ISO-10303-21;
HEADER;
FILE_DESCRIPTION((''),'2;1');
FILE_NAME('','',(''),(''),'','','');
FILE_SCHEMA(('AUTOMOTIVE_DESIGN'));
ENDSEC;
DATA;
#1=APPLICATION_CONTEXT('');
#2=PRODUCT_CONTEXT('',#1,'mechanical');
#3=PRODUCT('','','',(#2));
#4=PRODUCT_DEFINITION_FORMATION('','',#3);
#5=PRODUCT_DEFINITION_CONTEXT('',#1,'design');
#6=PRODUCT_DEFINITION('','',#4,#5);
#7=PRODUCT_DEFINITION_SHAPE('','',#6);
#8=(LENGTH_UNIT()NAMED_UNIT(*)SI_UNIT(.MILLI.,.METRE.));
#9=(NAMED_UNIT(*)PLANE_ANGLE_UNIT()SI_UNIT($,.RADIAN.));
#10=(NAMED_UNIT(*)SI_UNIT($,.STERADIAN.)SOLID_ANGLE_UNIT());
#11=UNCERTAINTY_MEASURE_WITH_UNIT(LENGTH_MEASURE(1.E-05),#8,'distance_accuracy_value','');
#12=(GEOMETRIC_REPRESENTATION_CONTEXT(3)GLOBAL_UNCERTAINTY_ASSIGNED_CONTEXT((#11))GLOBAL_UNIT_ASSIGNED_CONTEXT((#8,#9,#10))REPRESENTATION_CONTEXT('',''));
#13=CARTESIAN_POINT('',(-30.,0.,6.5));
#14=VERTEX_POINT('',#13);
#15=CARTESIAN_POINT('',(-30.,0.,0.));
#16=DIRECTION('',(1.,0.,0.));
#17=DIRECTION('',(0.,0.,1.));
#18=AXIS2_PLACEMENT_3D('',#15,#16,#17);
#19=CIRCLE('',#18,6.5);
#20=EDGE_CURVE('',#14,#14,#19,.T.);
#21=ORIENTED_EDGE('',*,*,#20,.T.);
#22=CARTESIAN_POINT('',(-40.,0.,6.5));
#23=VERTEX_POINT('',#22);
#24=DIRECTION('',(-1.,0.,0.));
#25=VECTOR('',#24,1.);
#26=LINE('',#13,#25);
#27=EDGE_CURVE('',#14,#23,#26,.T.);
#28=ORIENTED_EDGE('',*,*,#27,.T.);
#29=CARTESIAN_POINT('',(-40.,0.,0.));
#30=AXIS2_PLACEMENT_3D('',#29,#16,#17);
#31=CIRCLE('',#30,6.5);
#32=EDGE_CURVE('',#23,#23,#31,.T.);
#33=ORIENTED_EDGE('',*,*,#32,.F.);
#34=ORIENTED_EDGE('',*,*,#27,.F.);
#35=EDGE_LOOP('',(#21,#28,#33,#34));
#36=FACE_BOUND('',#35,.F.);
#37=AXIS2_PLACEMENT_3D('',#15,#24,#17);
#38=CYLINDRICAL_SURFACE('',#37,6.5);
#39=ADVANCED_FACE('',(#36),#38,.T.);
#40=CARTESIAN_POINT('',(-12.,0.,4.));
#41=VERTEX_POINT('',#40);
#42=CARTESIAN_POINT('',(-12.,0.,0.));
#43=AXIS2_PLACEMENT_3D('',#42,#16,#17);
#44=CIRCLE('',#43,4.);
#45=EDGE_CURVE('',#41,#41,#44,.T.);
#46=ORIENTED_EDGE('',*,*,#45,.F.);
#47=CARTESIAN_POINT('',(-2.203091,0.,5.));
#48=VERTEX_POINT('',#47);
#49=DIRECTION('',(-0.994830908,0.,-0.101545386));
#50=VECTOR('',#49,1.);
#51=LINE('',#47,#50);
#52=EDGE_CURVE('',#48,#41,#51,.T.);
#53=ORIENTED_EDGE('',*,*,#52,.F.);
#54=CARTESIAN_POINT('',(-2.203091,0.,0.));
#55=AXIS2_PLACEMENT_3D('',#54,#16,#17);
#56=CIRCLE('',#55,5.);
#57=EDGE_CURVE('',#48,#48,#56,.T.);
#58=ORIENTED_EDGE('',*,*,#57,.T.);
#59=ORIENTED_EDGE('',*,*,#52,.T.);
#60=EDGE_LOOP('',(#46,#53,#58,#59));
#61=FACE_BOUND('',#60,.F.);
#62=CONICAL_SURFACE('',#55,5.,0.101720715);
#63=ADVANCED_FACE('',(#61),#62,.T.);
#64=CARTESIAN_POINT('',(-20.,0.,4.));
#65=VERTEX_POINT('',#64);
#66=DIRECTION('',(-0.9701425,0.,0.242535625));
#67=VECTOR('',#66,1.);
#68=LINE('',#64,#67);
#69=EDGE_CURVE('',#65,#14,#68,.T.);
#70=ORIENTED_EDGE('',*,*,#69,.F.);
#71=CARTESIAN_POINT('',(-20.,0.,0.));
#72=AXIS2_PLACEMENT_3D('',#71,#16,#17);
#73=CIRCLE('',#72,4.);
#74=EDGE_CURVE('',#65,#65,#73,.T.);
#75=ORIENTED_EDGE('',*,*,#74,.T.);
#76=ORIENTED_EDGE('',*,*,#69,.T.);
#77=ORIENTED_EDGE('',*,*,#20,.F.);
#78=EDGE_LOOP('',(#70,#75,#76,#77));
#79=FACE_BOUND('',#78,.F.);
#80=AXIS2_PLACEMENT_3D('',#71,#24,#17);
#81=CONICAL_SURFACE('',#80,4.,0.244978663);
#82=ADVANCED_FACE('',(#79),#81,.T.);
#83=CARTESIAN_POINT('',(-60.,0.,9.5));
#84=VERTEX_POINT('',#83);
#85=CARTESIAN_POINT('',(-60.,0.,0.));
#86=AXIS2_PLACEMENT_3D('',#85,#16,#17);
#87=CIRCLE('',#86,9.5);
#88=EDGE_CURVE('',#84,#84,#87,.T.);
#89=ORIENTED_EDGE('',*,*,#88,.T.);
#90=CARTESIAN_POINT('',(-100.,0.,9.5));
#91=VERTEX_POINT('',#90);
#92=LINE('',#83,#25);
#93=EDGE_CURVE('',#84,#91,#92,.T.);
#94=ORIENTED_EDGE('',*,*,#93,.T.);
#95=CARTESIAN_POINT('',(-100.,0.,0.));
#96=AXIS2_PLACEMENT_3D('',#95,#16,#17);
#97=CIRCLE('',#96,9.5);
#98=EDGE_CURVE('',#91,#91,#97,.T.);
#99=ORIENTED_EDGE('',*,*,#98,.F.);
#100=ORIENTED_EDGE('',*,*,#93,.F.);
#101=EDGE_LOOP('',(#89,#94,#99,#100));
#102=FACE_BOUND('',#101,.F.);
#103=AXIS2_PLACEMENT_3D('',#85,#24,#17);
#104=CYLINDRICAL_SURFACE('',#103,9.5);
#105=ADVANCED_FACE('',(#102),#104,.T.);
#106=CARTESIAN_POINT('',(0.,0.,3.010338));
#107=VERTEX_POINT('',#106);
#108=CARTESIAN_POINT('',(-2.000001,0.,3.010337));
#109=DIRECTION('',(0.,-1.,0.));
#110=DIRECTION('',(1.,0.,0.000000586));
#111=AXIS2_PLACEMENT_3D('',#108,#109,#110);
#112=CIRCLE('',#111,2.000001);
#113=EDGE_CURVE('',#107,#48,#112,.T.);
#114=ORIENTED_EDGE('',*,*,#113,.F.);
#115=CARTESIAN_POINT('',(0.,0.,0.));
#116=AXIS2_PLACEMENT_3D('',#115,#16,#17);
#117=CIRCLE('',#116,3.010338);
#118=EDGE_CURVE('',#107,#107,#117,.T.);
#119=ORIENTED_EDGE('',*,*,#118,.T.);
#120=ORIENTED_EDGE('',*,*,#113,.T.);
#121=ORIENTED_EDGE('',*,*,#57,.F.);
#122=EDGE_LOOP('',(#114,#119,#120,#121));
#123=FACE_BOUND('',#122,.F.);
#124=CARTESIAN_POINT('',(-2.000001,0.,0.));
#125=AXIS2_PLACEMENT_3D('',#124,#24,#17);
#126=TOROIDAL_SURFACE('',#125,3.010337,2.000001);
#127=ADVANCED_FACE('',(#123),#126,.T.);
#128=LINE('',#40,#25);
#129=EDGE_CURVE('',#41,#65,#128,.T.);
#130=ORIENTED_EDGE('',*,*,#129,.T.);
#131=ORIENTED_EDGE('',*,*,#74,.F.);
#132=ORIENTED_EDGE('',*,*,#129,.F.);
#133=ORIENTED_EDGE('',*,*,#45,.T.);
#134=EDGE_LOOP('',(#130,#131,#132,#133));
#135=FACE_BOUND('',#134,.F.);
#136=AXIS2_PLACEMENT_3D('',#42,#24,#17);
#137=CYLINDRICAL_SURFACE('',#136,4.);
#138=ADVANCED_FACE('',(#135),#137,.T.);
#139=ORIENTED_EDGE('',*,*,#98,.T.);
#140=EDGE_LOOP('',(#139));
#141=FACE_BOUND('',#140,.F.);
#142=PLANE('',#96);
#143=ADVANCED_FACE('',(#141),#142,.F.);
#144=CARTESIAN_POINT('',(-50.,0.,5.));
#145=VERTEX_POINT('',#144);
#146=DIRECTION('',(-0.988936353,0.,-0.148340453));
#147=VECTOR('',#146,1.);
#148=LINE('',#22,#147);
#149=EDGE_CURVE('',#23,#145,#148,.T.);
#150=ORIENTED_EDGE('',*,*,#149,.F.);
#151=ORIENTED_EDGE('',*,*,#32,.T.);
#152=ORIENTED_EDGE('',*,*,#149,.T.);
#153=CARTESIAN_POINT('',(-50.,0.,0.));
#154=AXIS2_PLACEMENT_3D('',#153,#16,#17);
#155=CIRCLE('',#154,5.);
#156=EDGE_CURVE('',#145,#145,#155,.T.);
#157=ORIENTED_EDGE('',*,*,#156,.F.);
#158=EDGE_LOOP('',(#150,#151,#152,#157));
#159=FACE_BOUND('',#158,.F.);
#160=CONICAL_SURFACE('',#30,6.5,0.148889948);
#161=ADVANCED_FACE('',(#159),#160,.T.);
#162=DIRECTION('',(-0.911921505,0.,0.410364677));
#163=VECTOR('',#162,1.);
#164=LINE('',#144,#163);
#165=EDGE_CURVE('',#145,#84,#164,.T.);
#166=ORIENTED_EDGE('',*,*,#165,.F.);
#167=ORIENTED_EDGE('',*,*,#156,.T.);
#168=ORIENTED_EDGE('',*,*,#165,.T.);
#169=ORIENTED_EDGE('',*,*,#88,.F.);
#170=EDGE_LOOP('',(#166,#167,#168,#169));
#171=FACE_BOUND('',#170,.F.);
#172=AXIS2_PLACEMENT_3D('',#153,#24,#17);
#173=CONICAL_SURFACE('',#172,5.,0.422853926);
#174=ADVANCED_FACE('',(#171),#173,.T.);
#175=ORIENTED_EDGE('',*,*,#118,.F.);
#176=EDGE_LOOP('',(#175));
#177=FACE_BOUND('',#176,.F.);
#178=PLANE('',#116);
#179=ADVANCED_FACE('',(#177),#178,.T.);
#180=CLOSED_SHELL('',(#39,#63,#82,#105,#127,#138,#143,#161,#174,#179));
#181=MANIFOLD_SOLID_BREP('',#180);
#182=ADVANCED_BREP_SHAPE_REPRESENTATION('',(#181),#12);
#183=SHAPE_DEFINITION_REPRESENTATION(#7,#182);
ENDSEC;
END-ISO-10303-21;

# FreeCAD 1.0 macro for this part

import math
import FreeCAD as App
import Part
import Sketcher

doc = App.newDocument("Part")
body = doc.addObject("PartDesign::Body", "Body")

# Sketch on XZ plane
sketch1 = doc.addObject("Sketcher::SketchObject", "Sketch")
body.addObject(sketch1)
sketch1.AttachmentSupport = (doc.XZ_Plane, [""])
sketch1.MapMode = "FlatFace"
sketch1.addGeometry(Part.LineSegment(App.Vector(-100, 0, 0), App.Vector(0, 0, 0)), False)
sketch1.addGeometry(Part.LineSegment(App.Vector(0, 0, 0), App.Vector(0, 3, 0)), False)
sketch1.addGeometry(Part.ArcOfCircle(Part.Circle(App.Vector(-2, 3, 0), App.Vector(0, 0, 1), 2), math.radians(0), math.radians(96)), False)
sketch1.addGeometry(Part.LineSegment(App.Vector(-2.2, 5, 0), App.Vector(-12, 4, 0)), False)
sketch1.addGeometry(Part.LineSegment(App.Vector(-12, 4, 0), App.Vector(-20, 4, 0)), False)
sketch1.addGeometry(Part.LineSegment(App.Vector(-20, 4, 0), App.Vector(-30, 6.5, 0)), False)
sketch1.addGeometry(Part.LineSegment(App.Vector(-30, 6.5, 0), App.Vector(-40, 6.5, 0)), False)
sketch1.addGeometry(Part.LineSegment(App.Vector(-40, 6.5, 0), App.Vector(-50, 5, 0)), False)
sketch1.addGeometry(Part.LineSegment(App.Vector(-50, 5, 0), App.Vector(-60, 9.5, 0)), False)
sketch1.addGeometry(Part.LineSegment(App.Vector(-60, 9.5, 0), App.Vector(-100, 9.5, 0)), False)
sketch1.addGeometry(Part.LineSegment(App.Vector(-100, 9.5, 0), App.Vector(-100, 0, 0)), False)
sketch1.addConstraint(Sketcher.Constraint("Coincident", 0, 2, 1, 1))
sketch1.addConstraint(Sketcher.Constraint("Tangent", 1, 2, 2, 1))
sketch1.addConstraint(Sketcher.Constraint("Tangent", 2, 2, 3, 1))
sketch1.addConstraint(Sketcher.Constraint("Coincident", 3, 2, 4, 1))
sketch1.addConstraint(Sketcher.Constraint("Coincident", 4, 2, 5, 1))
sketch1.addConstraint(Sketcher.Constraint("Coincident", 5, 2, 6, 1))
sketch1.addConstraint(Sketcher.Constraint("Coincident", 6, 2, 7, 1))
sketch1.addConstraint(Sketcher.Constraint("Coincident", 7, 2, 8, 1))
sketch1.addConstraint(Sketcher.Constraint("Coincident", 8, 2, 9, 1))
sketch1.addConstraint(Sketcher.Constraint("Coincident", 9, 2, 10, 1))
sketch1.addConstraint(Sketcher.Constraint("Coincident", 10, 2, 0, 1))
sketch1.addConstraint(Sketcher.Constraint("Horizontal", 0))
sketch1.addConstraint(Sketcher.Constraint("Vertical", 1))
sketch1.addConstraint(Sketcher.Constraint("Horizontal", 4))
sketch1.addConstraint(Sketcher.Constraint("Horizontal", 6))
sketch1.addConstraint(Sketcher.Constraint("Horizontal", 9))
sketch1.addConstraint(Sketcher.Constraint("Vertical", 10))
sketch1.addConstraint(Sketcher.Constraint("Coincident", 0, 2, -1, 1))
sketch1.addConstraint(Sketcher.Constraint("Horizontal", 2, 2, 7, 2))
sketch1.addConstraint(Sketcher.Constraint("Radius", 2, 2.000001))
sketch1.addConstraint(Sketcher.Constraint("DistanceX", 0, 1, 0, 2, 100.0))
sketch1.addConstraint(Sketcher.Constraint("DistanceX", 4, 2, 4, 1, 8.0))
sketch1.addConstraint(Sketcher.Constraint("DistanceX", 6, 2, 6, 1, 10.0))
sketch1.addConstraint(Sketcher.Constraint("DistanceX", 9, 2, 9, 1, 40.0))
sketch1.addConstraint(Sketcher.Constraint("DistanceY", 10, 2, 10, 1, 9.5))
sketch1.addConstraint(Sketcher.Constraint("DistanceY", -1, 1, 2, 2, 5.0))
sketch1.addConstraint(Sketcher.Constraint("DistanceX", 3, 2, -1, 1, 12.0))
sketch1.addConstraint(Sketcher.Constraint("DistanceY", -1, 1, 3, 2, 4.0))
sketch1.addConstraint(Sketcher.Constraint("DistanceX", 5, 2, -1, 1, 30.0))
sketch1.addConstraint(Sketcher.Constraint("DistanceX", 7, 2, -1, 1, 50.0))
sketch1.addConstraint(Sketcher.Constraint("DistanceY", 6, 2, 8, 2, 3.0))
revolution = doc.addObject("PartDesign::Revolution", "Revolution")
body.addObject(revolution)
revolution.Profile = sketch1
revolution.ReferenceAxis = (sketch1, ["H_Axis"])
revolution.Angle = 360

doc.recompute()
